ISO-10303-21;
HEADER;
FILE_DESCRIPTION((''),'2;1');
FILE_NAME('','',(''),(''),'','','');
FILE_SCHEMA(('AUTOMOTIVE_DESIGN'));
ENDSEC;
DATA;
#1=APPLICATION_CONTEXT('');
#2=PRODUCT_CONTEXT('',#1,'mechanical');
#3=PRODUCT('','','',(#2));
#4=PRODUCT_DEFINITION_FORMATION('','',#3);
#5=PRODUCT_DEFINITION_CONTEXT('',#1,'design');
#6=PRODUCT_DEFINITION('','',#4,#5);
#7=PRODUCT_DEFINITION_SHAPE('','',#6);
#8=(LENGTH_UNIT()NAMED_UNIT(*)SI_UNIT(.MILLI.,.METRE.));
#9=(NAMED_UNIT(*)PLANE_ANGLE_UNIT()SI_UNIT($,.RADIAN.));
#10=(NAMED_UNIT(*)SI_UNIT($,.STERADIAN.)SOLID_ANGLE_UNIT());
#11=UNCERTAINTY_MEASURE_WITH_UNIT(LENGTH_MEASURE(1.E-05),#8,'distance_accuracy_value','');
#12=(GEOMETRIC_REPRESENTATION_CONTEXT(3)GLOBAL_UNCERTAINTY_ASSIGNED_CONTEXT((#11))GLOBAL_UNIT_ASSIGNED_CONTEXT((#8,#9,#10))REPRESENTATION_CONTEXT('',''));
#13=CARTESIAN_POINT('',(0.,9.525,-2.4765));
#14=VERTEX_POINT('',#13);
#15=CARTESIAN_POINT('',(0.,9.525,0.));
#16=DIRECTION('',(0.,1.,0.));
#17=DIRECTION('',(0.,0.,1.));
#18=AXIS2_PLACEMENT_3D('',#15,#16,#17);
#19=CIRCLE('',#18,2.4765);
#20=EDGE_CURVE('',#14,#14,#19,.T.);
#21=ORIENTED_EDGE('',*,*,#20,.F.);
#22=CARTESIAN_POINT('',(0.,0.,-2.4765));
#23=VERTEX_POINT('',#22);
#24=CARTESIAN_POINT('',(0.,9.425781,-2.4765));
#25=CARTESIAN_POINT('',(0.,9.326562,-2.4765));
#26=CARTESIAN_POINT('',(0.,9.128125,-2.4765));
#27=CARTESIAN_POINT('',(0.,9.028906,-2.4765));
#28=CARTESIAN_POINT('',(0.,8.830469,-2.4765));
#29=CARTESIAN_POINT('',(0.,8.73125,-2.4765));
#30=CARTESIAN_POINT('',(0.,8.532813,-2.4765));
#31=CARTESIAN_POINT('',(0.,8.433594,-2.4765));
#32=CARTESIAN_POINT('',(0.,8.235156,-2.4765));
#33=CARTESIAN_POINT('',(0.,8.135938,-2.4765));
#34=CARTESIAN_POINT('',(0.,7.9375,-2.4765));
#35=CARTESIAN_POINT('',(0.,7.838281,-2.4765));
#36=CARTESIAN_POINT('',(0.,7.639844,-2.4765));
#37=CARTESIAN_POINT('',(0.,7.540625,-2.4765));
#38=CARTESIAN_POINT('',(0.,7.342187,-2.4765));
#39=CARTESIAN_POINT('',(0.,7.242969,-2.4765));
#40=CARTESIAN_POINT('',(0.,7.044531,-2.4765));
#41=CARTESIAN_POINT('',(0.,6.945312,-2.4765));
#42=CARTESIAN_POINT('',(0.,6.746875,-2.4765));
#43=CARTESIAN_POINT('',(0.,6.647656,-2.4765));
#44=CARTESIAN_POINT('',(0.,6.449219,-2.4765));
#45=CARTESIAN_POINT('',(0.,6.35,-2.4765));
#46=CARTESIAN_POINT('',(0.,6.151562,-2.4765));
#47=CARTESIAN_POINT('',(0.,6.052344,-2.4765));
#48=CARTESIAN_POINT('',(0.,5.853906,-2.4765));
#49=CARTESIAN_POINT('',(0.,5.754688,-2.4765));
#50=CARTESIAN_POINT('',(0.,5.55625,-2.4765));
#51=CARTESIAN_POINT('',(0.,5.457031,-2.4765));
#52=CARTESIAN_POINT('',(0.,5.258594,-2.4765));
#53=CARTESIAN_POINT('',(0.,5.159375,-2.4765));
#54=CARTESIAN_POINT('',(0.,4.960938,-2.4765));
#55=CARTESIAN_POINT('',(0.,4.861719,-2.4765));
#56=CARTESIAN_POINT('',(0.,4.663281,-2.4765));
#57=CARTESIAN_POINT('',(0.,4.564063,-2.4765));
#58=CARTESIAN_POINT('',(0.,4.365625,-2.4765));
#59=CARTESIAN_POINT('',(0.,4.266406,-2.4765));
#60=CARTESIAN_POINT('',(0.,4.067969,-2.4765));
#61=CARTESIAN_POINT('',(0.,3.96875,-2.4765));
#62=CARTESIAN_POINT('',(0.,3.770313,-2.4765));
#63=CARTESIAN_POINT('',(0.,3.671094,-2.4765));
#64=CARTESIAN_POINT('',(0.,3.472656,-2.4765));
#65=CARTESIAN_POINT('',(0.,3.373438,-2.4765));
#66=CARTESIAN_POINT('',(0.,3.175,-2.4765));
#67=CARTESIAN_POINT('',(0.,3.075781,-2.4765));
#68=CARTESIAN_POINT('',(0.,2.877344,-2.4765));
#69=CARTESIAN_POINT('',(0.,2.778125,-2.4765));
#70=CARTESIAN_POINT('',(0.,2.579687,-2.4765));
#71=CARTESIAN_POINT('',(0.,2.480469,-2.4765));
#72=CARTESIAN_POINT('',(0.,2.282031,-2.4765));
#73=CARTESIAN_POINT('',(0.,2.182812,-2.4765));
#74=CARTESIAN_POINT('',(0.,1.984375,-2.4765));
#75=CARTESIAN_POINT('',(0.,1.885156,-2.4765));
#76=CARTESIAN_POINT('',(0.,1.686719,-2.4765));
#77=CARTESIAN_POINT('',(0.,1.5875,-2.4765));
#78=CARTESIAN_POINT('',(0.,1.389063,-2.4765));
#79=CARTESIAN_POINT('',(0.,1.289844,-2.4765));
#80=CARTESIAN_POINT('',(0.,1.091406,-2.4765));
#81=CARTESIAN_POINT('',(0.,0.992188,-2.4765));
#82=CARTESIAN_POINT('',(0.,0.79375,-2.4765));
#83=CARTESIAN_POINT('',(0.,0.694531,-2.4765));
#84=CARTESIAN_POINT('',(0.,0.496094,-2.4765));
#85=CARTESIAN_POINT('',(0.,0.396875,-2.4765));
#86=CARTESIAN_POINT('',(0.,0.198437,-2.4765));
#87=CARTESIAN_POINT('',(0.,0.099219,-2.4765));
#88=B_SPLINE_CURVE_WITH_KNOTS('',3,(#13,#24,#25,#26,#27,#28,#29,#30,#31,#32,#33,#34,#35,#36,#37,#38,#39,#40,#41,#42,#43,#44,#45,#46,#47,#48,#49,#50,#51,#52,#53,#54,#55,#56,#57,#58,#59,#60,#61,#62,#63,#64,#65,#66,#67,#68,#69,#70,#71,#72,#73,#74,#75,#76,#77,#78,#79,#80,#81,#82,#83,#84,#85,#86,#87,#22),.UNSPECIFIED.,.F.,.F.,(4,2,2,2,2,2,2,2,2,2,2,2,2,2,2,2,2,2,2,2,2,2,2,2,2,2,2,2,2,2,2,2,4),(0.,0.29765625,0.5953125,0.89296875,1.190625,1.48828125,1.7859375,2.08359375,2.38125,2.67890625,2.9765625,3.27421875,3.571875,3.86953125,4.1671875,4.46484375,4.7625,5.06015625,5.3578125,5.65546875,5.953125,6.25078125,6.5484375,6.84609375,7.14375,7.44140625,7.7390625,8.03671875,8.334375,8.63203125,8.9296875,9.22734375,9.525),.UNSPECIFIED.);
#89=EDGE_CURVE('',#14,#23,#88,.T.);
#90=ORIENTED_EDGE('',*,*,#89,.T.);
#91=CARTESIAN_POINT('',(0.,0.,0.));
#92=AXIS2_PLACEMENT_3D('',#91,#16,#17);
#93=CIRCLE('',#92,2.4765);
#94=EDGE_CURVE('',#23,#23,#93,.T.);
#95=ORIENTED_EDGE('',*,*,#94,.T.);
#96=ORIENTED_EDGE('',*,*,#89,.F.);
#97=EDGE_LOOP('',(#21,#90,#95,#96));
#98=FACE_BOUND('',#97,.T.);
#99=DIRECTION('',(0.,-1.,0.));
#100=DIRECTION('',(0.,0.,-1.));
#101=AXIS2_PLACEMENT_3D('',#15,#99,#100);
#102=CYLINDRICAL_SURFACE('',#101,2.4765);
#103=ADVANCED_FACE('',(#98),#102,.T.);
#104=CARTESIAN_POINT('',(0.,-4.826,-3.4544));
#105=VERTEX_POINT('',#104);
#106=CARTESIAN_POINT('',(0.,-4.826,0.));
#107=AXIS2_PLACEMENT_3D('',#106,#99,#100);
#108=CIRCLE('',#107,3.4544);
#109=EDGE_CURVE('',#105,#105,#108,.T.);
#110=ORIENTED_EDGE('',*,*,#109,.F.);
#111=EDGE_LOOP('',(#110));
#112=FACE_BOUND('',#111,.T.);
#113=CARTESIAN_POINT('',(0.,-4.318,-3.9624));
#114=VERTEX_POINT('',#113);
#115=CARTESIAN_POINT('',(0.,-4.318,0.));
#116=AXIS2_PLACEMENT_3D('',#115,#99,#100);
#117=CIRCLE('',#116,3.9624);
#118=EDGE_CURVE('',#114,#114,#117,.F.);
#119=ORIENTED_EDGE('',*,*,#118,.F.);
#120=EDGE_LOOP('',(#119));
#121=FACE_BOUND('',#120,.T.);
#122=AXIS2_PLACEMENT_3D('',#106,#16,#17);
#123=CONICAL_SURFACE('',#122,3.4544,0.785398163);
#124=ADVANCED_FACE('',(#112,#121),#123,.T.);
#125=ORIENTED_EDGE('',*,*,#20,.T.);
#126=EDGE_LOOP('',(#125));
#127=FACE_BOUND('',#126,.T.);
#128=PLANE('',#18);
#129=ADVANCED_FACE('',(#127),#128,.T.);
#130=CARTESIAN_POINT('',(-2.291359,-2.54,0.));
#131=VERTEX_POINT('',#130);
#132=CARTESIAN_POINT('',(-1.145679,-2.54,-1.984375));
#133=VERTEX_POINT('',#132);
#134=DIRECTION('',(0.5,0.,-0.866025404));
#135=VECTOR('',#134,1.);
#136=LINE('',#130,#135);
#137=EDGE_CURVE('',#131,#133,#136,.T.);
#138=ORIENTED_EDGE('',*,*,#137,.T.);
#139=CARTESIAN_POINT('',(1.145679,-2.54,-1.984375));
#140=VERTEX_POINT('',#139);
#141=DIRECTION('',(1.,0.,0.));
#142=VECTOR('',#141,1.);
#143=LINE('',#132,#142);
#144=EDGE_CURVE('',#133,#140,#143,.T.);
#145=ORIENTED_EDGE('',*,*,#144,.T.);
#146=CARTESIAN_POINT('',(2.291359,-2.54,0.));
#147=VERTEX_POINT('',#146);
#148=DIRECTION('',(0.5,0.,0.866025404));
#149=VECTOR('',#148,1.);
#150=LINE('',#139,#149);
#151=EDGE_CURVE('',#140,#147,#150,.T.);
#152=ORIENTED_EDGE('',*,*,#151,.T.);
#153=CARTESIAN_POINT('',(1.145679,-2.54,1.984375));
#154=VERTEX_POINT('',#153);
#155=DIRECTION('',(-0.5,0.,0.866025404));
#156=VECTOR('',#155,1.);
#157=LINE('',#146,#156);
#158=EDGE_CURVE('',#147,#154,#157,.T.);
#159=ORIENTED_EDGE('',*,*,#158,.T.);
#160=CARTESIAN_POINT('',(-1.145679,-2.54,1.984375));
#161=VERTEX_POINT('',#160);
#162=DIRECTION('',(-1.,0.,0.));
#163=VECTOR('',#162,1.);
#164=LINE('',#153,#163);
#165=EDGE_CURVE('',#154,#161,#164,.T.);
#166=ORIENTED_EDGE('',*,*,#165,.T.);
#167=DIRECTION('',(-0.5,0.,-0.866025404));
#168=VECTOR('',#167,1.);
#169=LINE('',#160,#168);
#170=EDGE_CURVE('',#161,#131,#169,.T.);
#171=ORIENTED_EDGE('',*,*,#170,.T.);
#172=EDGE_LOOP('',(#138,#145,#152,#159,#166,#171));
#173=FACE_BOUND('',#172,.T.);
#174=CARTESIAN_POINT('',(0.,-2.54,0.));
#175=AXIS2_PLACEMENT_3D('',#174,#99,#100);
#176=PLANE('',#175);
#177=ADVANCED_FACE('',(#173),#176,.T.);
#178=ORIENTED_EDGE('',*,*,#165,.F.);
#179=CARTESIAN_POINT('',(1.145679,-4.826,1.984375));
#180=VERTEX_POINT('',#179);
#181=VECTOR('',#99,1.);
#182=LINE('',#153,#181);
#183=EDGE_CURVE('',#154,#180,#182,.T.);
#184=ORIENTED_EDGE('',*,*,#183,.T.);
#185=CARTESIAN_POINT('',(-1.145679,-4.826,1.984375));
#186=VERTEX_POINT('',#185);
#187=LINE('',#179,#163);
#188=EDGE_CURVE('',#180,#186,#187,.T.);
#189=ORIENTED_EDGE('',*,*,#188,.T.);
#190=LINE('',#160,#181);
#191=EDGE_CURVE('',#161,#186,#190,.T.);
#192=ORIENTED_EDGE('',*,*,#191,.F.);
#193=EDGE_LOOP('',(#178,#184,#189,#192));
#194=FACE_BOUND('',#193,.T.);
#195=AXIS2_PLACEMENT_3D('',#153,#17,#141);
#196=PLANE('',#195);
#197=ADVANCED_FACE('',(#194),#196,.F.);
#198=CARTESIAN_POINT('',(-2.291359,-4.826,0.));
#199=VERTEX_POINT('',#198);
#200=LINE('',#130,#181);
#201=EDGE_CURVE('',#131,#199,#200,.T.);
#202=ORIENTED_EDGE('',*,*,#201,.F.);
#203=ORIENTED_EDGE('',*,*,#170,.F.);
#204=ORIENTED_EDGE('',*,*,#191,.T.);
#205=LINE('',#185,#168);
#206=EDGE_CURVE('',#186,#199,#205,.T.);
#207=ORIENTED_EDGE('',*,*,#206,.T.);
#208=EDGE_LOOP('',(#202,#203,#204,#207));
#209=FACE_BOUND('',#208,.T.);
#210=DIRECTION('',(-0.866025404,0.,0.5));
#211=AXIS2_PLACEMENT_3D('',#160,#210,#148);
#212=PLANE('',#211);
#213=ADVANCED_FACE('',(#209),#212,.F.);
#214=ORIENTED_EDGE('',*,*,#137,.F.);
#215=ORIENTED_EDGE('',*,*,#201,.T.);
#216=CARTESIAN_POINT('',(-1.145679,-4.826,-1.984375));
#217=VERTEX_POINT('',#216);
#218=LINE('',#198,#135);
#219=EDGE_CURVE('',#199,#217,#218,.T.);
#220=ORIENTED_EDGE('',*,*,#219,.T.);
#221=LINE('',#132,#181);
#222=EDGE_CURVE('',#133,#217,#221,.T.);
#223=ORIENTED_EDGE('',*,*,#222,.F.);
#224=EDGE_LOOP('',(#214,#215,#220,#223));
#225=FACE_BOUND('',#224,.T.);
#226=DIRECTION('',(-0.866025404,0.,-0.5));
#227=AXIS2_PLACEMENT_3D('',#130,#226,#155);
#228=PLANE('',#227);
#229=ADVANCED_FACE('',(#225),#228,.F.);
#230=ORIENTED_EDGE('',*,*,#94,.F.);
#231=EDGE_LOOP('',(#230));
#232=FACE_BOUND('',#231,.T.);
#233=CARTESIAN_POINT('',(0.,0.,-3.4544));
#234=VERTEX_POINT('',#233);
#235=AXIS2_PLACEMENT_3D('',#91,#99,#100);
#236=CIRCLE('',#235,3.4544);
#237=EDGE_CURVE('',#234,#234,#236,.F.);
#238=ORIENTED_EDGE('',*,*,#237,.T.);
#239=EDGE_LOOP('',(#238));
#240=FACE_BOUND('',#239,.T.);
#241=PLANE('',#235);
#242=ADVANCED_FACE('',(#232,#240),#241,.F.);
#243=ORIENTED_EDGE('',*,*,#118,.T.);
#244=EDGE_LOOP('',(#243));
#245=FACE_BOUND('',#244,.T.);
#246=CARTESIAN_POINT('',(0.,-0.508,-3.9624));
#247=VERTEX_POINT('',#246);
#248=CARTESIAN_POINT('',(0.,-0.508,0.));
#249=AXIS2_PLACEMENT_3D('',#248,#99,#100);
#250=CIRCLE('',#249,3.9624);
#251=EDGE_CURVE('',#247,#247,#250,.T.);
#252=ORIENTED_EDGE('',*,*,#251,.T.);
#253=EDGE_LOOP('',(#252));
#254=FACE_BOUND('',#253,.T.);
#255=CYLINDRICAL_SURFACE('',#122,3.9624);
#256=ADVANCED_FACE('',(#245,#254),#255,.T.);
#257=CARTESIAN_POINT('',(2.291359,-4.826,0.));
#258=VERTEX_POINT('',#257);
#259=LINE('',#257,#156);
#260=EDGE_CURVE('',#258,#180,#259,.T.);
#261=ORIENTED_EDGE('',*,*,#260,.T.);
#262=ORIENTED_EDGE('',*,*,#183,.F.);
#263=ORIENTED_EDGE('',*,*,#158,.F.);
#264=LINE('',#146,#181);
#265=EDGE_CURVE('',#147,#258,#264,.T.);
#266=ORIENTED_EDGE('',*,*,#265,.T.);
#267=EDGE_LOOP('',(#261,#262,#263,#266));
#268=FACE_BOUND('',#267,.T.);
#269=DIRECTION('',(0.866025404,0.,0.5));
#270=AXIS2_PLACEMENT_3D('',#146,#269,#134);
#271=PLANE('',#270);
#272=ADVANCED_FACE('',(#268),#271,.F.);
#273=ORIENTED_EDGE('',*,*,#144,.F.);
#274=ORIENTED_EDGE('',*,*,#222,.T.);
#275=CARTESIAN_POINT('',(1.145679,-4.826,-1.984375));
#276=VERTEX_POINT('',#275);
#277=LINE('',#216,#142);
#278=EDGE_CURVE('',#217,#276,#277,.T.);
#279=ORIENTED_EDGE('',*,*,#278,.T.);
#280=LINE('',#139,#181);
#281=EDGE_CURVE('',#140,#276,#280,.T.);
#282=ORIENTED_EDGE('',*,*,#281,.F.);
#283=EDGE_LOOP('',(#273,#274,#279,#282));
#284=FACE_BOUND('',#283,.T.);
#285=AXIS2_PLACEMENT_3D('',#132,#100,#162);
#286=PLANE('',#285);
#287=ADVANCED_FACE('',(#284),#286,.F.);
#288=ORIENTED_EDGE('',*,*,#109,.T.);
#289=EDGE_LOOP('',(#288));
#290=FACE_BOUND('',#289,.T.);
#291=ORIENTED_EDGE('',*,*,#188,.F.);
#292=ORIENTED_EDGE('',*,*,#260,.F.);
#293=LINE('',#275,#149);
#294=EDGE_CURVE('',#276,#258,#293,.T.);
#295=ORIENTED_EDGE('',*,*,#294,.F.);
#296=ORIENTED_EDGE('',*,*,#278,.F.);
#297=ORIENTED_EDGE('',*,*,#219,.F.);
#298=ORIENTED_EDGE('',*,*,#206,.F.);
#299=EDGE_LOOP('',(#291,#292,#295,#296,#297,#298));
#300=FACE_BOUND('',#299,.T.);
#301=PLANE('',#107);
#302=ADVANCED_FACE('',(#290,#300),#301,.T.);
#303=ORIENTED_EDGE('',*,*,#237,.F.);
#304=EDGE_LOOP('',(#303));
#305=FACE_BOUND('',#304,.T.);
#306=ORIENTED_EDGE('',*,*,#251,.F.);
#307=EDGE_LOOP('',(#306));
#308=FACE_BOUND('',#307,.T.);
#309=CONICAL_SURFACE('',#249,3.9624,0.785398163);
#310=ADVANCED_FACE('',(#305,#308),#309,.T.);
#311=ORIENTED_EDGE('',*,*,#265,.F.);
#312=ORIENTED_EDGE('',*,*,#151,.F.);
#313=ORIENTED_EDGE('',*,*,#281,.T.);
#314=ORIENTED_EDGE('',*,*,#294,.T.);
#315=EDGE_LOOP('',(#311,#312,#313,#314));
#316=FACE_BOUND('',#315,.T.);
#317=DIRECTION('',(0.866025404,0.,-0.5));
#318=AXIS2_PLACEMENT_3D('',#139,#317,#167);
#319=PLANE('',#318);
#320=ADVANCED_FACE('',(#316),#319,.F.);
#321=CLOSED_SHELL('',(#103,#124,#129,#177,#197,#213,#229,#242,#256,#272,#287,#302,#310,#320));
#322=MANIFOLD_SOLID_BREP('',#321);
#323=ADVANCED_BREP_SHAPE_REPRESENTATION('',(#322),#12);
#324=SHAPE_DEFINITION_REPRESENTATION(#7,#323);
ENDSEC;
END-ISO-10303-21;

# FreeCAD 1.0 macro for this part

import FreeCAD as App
import Part
import Sketcher
Q = App.Units.Quantity


def edges_at(feature, points):
    """Names of the edges that pass closest to the given points."""
    edges = feature.Shape.Edges
    near = lambda p: min(range(len(edges)), key=lambda i: edges[i].distToShape(Part.Vertex(*p))[0])
    return sorted({f"Edge{near(p) + 1}" for p in points})


def add_polygon(sketch, points):
    """Adds a closed chain of lines whose ends are joined by coincident constraints."""
    first, n = sketch.GeometryCount, len(points)
    for a, b in zip(points, points[1:] + points[:1]):
        sketch.addGeometry(Part.LineSegment(App.Vector(*a, 0), App.Vector(*b, 0)), False)
    for i in range(n):
        sketch.addConstraint(Sketcher.Constraint("Coincident", first + i, 2, first + (i + 1) % n, 1))

doc = App.newDocument("Part")
body = doc.addObject("PartDesign::Body", "Body")

# Sketch on XZ plane
sketch1 = doc.addObject("Sketcher::SketchObject", "Sketch")
body.addObject(sketch1)
sketch1.AttachmentSupport = (doc.XZ_Plane, [""])
sketch1.MapMode = "FlatFace"
sketch1.addGeometry(Part.Circle(App.Vector(0, 0, 0), App.Vector(0, 0, 1), 2.4765), False)
sketch1.addConstraint(Sketcher.Constraint("Coincident", 0, 3, -1, 1))
sketch1.addConstraint(Sketcher.Constraint("Diameter", 0, Q("0.195 in")))
pad1 = doc.addObject("PartDesign::Pad", "Pad")
body.addObject(pad1)
pad1.Profile = sketch1
pad1.Length = Q("0.375 in")
pad1.Reversed = True

# Sketch on XZ plane
sketch2 = doc.addObject("Sketcher::SketchObject", "Sketch001")
body.addObject(sketch2)
sketch2.AttachmentSupport = (doc.XZ_Plane, [""])
sketch2.MapMode = "FlatFace"
sketch2.addGeometry(Part.Circle(App.Vector(0, 0, 0), App.Vector(0, 0, 1), 3.9624), False)
sketch2.addConstraint(Sketcher.Constraint("Coincident", 0, 3, -1, 1))
sketch2.addConstraint(Sketcher.Constraint("Diameter", 0, Q("0.312 in")))
pad2 = doc.addObject("PartDesign::Pad", "Pad001")
body.addObject(pad2)
pad2.Profile = sketch2
pad2.Length = Q("0.19 in")

# Sketch on XZ plane
sketch3 = doc.addObject("Sketcher::SketchObject", "Sketch002")
body.addObject(sketch3)
sketch3.AttachmentSupport = (doc.XZ_Plane, [""])
sketch3.MapMode = "FlatFace"
sketch3.AttachmentOffset = App.Placement(App.Vector(0, 0, 0.19 * 25.4), App.Rotation())
add_polygon(sketch3, [(2.291359, 0), (1.145679, 1.984375), (-1.145679, 1.984375), (-2.291359, 0), (-1.145679, -1.984375), (1.145679, -1.984375)])  # lines 0-5
sketch3.addConstraint(Sketcher.Constraint("Horizontal", 1))
sketch3.addConstraint(Sketcher.Constraint("Horizontal", 4))
sketch3.addConstraint(Sketcher.Constraint("Symmetric", 0, 2, 3, 2, -1, 1))
sketch3.addConstraint(Sketcher.Constraint("Symmetric", 2, 2, 5, 2, -1, 1))
sketch3.addConstraint(Sketcher.Constraint("PointOnObject", 2, 2, -1))
sketch3.addConstraint(Sketcher.Constraint("Parallel", 2, 5))
sketch3.addConstraint(Sketcher.Constraint("Vertical", 1, 2, 3, 2))
sketch3.addConstraint(Sketcher.Constraint("Angle", 0, Q("120 deg")))
sketch3.addConstraint(Sketcher.Constraint("DistanceY", -1, 1, 0, 2, Q("0.078125 in")))
sketch3.addConstraint(Sketcher.Constraint("DistanceX", 1, 2, 1, 1, 2.291359))
pocket1 = doc.addObject("PartDesign::Pocket", "Pocket")
body.addObject(pocket1)
pocket1.Profile = sketch3
pocket1.Length = Q("0.09 in")
doc.recompute()

chamfer = doc.addObject("PartDesign::Chamfer", "Chamfer")
body.addObject(chamfer)
chamfer.Base = (pocket1, edges_at(pocket1, [(0, 0, 3.962), (0, -4.826, 3.962)]))
chamfer.Size = Q("0.02 in")

doc.recompute()
